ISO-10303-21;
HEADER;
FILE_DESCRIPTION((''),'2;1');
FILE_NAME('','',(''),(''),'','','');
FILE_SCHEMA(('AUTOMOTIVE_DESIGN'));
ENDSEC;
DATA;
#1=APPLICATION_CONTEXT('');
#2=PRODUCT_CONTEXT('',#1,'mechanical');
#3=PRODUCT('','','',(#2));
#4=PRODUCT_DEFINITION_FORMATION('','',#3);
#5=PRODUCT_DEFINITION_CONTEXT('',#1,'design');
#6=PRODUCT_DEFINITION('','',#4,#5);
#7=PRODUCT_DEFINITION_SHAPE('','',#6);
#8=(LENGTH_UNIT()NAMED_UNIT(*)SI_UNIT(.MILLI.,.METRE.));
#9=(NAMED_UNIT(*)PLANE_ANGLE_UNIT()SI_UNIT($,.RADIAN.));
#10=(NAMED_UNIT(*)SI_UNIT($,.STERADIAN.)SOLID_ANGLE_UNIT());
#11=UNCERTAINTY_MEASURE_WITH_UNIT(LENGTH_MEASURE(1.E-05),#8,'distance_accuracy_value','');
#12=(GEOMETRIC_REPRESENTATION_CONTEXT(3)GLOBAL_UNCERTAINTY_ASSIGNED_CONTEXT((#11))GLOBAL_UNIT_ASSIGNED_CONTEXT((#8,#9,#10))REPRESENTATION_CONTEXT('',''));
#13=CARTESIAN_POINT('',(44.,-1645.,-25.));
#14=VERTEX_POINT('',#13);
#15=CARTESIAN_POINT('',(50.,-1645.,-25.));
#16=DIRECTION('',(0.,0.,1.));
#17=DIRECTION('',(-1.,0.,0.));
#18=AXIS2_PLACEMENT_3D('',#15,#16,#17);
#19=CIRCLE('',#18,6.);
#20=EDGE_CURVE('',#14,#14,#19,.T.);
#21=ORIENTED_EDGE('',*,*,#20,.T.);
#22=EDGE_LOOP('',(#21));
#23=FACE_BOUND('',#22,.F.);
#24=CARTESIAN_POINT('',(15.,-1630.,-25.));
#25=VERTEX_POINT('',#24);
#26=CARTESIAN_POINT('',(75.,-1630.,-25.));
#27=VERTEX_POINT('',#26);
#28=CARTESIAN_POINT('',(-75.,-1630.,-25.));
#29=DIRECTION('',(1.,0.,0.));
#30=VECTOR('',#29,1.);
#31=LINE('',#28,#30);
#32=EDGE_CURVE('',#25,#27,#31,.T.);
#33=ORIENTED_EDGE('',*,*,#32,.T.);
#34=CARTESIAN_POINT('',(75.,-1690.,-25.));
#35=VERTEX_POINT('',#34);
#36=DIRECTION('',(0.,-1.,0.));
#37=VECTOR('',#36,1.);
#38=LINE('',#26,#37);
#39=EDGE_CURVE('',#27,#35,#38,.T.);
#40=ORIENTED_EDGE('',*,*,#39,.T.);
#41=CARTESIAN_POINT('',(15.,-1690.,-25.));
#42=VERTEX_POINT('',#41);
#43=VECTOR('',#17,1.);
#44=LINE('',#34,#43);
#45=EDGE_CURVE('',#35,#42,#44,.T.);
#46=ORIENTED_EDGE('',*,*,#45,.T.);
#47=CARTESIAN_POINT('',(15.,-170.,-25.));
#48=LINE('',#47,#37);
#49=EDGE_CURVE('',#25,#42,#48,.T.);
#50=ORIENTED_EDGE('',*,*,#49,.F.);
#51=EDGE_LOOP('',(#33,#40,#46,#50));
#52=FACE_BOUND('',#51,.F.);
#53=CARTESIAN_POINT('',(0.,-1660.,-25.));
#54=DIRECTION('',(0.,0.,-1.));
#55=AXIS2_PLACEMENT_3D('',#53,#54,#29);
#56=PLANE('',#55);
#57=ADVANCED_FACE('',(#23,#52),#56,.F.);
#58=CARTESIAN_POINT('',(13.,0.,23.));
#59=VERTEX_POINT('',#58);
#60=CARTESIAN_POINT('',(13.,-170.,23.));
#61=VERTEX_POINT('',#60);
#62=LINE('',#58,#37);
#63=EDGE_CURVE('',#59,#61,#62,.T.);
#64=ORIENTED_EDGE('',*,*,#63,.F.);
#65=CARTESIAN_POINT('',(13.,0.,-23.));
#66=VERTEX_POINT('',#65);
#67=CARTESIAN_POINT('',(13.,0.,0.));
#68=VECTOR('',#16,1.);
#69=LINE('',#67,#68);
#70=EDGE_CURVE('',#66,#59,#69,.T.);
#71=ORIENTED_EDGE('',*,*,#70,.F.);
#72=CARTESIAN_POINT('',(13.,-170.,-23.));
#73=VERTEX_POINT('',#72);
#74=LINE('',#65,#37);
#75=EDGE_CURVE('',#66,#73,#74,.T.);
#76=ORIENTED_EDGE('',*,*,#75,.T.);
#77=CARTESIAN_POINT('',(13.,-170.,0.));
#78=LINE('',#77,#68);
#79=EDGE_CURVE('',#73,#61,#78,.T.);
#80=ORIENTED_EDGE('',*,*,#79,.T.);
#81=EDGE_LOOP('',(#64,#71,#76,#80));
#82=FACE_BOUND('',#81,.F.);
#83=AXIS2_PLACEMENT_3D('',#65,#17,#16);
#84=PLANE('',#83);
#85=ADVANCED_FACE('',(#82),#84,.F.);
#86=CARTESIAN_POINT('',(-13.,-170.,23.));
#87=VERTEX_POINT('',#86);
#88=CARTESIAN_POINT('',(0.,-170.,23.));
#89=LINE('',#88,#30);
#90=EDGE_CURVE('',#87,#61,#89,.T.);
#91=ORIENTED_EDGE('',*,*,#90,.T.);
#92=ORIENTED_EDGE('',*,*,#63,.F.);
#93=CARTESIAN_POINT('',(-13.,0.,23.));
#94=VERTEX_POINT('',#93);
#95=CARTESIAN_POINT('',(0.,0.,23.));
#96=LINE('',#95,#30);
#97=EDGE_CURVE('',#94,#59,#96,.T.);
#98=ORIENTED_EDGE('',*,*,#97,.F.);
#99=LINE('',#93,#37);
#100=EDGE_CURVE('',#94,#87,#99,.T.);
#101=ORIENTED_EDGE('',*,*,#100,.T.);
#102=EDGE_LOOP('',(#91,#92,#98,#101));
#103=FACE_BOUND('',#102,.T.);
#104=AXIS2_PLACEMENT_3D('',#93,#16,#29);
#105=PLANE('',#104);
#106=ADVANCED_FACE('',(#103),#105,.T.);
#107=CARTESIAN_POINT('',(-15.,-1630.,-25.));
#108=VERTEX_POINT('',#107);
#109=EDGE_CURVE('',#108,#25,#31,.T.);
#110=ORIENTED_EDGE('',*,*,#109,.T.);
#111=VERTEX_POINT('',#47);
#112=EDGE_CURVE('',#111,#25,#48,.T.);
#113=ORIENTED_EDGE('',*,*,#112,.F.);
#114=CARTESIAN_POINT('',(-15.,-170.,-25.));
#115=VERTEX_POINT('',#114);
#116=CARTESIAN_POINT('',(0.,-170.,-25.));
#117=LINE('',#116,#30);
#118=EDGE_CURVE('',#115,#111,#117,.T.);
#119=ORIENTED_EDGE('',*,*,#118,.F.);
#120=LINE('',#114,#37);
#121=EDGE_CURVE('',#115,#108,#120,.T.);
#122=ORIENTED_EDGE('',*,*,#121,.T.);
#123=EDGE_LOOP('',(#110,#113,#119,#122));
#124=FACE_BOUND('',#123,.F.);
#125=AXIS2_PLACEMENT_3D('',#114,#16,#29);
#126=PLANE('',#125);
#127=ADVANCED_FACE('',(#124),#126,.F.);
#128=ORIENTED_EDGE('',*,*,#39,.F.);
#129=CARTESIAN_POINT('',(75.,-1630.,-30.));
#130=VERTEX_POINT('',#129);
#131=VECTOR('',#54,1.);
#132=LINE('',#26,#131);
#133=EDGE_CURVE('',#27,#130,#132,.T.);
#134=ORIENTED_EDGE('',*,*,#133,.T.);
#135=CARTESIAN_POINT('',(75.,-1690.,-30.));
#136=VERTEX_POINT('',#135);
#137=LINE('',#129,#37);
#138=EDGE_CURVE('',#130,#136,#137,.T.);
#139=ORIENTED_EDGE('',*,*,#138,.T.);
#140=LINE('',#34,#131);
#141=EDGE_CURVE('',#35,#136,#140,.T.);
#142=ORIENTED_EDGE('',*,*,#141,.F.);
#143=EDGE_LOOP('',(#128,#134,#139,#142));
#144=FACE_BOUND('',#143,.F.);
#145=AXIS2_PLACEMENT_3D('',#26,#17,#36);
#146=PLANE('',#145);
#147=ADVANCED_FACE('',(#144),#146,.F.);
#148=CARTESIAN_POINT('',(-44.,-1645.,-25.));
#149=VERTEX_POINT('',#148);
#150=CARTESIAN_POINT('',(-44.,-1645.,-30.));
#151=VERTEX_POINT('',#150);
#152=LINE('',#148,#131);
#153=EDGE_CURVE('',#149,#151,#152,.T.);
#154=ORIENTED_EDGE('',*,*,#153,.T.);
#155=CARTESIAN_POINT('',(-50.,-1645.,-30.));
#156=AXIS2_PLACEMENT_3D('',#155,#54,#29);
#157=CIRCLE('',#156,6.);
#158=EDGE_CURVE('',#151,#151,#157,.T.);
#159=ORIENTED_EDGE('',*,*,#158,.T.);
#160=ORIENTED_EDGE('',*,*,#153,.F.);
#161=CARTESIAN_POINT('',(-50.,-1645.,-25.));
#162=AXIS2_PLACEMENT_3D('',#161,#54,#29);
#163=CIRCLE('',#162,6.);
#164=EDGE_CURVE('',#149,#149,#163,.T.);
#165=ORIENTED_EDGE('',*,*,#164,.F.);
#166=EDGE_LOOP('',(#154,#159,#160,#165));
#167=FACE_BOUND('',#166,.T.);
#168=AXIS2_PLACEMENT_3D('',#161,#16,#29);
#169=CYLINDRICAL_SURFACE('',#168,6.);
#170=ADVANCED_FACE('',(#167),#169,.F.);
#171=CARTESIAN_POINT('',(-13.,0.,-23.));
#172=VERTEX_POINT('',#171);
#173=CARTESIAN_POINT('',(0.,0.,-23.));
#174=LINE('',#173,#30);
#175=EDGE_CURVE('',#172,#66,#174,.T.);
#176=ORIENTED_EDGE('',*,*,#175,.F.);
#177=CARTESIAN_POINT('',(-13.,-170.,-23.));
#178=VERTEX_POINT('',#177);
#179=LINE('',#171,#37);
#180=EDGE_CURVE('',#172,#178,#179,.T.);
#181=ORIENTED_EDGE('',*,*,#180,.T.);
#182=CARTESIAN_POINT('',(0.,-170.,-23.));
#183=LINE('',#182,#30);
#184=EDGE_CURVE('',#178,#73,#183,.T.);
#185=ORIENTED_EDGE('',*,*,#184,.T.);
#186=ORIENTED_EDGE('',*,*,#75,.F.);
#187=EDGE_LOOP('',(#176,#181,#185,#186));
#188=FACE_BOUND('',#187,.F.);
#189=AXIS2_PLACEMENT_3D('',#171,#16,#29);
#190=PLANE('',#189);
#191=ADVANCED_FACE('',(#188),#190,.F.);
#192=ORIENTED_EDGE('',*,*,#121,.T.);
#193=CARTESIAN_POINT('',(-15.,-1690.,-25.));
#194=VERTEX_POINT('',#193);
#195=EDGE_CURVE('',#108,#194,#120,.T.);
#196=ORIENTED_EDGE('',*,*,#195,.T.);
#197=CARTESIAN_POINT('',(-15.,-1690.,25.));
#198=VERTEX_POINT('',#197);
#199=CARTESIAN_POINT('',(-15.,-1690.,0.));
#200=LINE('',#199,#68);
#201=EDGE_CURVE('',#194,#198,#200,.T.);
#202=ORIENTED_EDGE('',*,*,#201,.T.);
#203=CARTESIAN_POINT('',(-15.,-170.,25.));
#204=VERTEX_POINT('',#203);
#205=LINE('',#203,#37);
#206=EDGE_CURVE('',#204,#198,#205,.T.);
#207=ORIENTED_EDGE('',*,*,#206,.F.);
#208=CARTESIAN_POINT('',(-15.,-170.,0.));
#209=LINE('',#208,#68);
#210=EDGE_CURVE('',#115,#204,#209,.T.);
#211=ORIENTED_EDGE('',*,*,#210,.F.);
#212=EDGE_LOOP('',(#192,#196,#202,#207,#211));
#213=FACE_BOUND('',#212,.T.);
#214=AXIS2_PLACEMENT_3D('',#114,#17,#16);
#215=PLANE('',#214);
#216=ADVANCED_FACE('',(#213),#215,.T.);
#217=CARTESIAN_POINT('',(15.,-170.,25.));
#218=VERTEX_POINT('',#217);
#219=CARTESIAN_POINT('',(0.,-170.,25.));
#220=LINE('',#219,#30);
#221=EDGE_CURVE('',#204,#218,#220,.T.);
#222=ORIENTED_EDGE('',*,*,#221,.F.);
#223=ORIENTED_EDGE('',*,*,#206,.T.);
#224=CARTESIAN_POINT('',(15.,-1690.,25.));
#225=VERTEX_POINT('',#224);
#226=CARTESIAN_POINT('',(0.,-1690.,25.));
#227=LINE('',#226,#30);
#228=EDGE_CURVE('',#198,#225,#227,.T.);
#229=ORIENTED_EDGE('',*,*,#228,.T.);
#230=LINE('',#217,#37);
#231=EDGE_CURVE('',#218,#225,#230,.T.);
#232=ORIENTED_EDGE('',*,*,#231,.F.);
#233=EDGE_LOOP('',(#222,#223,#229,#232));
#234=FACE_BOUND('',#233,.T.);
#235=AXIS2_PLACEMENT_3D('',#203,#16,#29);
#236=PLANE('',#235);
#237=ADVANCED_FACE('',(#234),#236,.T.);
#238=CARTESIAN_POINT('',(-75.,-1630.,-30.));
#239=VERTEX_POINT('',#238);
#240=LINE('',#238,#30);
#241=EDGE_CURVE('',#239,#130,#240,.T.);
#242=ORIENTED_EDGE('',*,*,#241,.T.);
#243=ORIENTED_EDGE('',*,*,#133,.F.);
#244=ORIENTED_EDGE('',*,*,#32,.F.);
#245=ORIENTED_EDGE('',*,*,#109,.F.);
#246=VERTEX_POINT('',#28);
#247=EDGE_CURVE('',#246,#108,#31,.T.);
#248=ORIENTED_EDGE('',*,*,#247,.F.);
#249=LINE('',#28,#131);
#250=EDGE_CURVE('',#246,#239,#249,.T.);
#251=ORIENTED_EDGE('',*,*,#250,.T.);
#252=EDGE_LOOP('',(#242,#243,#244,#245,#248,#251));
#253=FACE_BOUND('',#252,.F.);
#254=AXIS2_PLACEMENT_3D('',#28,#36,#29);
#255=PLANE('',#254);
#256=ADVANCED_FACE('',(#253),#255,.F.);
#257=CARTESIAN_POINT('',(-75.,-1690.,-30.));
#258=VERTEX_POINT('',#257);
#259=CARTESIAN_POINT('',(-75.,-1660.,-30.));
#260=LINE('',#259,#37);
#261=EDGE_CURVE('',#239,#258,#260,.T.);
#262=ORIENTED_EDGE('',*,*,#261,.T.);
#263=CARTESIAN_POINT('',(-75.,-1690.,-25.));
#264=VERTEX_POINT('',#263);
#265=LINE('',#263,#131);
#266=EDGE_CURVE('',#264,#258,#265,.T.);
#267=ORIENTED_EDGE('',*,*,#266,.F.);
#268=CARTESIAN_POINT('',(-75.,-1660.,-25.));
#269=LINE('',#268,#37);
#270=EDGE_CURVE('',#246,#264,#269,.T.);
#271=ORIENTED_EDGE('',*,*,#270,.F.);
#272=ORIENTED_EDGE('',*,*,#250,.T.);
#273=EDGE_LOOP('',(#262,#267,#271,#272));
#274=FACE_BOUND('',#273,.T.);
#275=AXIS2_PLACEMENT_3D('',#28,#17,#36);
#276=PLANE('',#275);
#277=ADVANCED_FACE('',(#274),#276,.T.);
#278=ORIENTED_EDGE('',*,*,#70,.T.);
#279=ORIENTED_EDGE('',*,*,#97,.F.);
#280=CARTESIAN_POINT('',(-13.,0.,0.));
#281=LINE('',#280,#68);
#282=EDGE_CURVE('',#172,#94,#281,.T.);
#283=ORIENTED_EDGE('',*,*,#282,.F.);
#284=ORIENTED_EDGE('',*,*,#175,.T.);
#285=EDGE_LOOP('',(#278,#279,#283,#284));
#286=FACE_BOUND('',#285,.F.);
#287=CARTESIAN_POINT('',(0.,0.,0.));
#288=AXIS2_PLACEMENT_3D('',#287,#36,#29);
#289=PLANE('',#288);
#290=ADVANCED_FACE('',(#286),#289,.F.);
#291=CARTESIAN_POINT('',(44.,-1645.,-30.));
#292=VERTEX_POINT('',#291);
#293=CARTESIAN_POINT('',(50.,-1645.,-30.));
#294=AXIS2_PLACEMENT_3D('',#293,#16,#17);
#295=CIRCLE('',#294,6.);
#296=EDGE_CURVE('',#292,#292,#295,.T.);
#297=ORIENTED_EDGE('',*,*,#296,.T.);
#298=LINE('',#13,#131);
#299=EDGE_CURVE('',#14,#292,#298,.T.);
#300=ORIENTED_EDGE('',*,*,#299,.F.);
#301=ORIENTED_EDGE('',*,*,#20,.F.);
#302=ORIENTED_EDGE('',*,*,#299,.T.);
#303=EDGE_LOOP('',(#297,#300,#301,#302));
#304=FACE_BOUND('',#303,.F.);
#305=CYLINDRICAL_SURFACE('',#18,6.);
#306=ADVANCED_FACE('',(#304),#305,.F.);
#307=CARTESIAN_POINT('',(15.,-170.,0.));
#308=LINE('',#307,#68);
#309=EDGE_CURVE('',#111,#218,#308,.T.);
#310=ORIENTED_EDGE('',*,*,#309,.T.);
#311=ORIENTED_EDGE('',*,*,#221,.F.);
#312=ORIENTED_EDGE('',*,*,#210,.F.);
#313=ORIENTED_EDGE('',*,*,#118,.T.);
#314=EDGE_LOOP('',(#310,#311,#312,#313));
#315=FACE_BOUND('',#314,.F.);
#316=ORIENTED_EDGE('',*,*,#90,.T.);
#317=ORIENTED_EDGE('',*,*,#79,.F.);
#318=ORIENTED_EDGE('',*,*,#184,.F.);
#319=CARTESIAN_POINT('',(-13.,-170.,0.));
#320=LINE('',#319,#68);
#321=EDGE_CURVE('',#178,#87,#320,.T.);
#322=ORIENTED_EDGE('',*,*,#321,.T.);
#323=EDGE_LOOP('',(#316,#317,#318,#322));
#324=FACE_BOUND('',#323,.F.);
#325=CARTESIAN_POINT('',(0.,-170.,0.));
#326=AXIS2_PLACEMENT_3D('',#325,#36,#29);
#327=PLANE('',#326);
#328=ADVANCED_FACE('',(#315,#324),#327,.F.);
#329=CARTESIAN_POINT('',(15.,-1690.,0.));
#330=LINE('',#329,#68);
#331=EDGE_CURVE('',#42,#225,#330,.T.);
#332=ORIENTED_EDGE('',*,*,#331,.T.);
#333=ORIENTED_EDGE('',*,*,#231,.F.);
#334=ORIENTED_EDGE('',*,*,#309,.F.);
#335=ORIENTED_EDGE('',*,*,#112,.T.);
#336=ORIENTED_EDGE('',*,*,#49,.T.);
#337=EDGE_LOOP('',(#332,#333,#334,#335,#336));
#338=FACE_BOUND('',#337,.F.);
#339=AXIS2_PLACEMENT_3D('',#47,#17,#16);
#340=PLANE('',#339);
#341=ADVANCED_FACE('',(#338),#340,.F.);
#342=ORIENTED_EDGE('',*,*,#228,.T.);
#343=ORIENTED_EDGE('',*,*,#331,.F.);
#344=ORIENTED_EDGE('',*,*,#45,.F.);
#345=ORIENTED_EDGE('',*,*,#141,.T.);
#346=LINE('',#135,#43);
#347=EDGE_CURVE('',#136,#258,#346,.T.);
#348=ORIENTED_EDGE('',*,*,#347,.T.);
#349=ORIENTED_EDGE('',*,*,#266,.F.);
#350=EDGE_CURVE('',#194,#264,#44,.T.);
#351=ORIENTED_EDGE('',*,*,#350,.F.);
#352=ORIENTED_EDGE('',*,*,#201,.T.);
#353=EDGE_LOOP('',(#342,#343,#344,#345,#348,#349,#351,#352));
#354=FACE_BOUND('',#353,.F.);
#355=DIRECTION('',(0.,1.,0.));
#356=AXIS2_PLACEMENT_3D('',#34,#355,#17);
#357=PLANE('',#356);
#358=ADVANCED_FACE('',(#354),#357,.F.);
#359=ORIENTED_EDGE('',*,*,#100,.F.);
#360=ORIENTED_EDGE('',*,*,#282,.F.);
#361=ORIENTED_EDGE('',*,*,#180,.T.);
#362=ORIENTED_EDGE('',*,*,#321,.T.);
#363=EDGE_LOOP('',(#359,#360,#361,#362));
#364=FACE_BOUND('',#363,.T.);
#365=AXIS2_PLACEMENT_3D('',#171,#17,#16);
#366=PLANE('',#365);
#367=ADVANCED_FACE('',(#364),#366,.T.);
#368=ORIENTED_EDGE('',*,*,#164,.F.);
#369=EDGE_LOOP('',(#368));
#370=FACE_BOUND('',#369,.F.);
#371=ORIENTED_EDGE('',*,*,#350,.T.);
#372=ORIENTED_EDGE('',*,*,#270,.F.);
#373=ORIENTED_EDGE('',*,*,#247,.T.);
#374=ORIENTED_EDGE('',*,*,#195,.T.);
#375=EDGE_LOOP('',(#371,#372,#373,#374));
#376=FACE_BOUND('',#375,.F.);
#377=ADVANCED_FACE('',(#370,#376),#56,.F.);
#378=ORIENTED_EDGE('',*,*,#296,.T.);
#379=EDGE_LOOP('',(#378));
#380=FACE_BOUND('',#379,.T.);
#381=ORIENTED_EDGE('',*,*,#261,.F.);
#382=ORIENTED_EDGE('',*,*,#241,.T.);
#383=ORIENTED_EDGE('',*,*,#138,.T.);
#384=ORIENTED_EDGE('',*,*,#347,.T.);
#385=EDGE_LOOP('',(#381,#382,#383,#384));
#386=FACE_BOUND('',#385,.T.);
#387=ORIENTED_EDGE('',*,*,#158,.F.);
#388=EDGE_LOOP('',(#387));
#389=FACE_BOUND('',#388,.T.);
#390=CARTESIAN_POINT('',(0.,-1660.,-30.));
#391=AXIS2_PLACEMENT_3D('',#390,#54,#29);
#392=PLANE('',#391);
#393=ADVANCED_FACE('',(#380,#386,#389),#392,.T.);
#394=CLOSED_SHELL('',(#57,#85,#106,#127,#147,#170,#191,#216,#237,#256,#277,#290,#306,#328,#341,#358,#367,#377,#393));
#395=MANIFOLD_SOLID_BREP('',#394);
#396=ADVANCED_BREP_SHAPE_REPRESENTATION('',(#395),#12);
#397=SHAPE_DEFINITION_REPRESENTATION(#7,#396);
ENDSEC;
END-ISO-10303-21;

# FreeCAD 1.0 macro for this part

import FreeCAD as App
import Part
import Sketcher

V = App.Vector


def add_polygon(sketch, points):
    """Adds a closed chain of lines whose ends are joined by coincident constraints."""
    first, n = sketch.GeometryCount, len(points)
    for a, b in zip(points, points[1:] + points[:1]):
        sketch.addGeometry(Part.LineSegment(App.Vector(*a, 0), App.Vector(*b, 0)), False)
    for i in range(n):
        sketch.addConstraint(Sketcher.Constraint("Coincident", first + i, 2, first + (i + 1) % n, 1))

doc = App.newDocument("Part")
body = doc.addObject("PartDesign::Body", "Body")

# Sketch on XZ plane
sketch1 = doc.addObject("Sketcher::SketchObject", "Sketch")
body.addObject(sketch1)
sketch1.AttachmentSupport = (doc.XZ_Plane, [""])
sketch1.MapMode = "FlatFace"
add_polygon(sketch1, [(-13, 23), (-13, -23), (13, -23), (13, 23)])  # lines 0-3
sketch1.addConstraint(Sketcher.Constraint("Vertical", 0))
sketch1.addConstraint(Sketcher.Constraint("Horizontal", 1))
sketch1.addConstraint(Sketcher.Constraint("Vertical", 2))
sketch1.addConstraint(Sketcher.Constraint("Horizontal", 3))
sketch1.addConstraint(Sketcher.Constraint("Symmetric", 0, 2, 2, 2, -1, 1))
sketch1.addConstraint(Sketcher.Constraint("DistanceX", 1, 1, 1, 2, 26.0))
sketch1.addConstraint(Sketcher.Constraint("DistanceY", 0, 2, 0, 1, 46.0))
pad1 = doc.addObject("PartDesign::Pad", "Pad")
body.addObject(pad1)
pad1.Profile = sketch1
pad1.Length = 170

# Sketch on XZ plane
sketch2 = doc.addObject("Sketcher::SketchObject", "Sketch001")
body.addObject(sketch2)
sketch2.AttachmentSupport = (doc.XZ_Plane, [""])
sketch2.MapMode = "FlatFace"
sketch2.AttachmentOffset = App.Placement(V(0, 0, 170), App.Rotation())
add_polygon(sketch2, [(-15, 25), (-15, -25), (15, -25), (15, 25)])  # lines 0-3
sketch2.addConstraint(Sketcher.Constraint("Vertical", 0))
sketch2.addConstraint(Sketcher.Constraint("Horizontal", 1))
sketch2.addConstraint(Sketcher.Constraint("Vertical", 2))
sketch2.addConstraint(Sketcher.Constraint("Horizontal", 3))
sketch2.addConstraint(Sketcher.Constraint("Symmetric", 0, 2, 2, 2, -1, 1))
sketch2.addConstraint(Sketcher.Constraint("DistanceX", 1, 1, 1, 2, 30.0))
sketch2.addConstraint(Sketcher.Constraint("DistanceY", 0, 2, 0, 1, 50.0))
pad2 = doc.addObject("PartDesign::Pad", "Pad001")
body.addObject(pad2)
pad2.Profile = sketch2
pad2.Length = 1520

# Sketch on XY plane
sketch3 = doc.addObject("Sketcher::SketchObject", "Sketch002")
body.addObject(sketch3)
sketch3.AttachmentSupport = (doc.XY_Plane, [""])
sketch3.MapMode = "FlatFace"
sketch3.AttachmentOffset = App.Placement(V(0, 0, -25), App.Rotation())
add_polygon(sketch3, [(-75, -1690), (-75, -1630), (75, -1630), (75, -1690)])  # lines 0-3
sketch3.addGeometry(Part.Circle(V(-50, -1645, 0), V(0, 0, 1), 6), False)  # 4
sketch3.addGeometry(Part.Circle(V(50, -1645, 0), V(0, 0, 1), 6), False)  # 5
sketch3.addConstraint(Sketcher.Constraint("Vertical", 0))
sketch3.addConstraint(Sketcher.Constraint("Horizontal", 1))
sketch3.addConstraint(Sketcher.Constraint("Vertical", 2))
sketch3.addConstraint(Sketcher.Constraint("Horizontal", 3))
sketch3.addConstraint(Sketcher.Constraint("Equal", 4, 5))
sketch3.addConstraint(Sketcher.Constraint("Symmetric", 4, 3, 5, 3, -2))
sketch3.addConstraint(Sketcher.Constraint("Diameter", 4, 12.0))
sketch3.addConstraint(Sketcher.Constraint("DistanceX", 1, 1, 1, 2, 150.0))
sketch3.addConstraint(Sketcher.Constraint("DistanceY", 0, 1, 0, 2, 60.0))
sketch3.addConstraint(Sketcher.Constraint("DistanceX", 4, 3, -1, 1, 50.0))
sketch3.addConstraint(Sketcher.Constraint("DistanceY", 4, 3, -1, 1, 1645.0))
sketch3.addConstraint(Sketcher.Constraint("DistanceX", 0, 2, -1, 1, 75.0))
sketch3.addConstraint(Sketcher.Constraint("DistanceY", 0, 2, -1, 1, 1630.0))
pad3 = doc.addObject("PartDesign::Pad", "Pad002")
body.addObject(pad3)
pad3.Profile = sketch3
pad3.Length = 5
pad3.Reversed = True

doc.recompute()
